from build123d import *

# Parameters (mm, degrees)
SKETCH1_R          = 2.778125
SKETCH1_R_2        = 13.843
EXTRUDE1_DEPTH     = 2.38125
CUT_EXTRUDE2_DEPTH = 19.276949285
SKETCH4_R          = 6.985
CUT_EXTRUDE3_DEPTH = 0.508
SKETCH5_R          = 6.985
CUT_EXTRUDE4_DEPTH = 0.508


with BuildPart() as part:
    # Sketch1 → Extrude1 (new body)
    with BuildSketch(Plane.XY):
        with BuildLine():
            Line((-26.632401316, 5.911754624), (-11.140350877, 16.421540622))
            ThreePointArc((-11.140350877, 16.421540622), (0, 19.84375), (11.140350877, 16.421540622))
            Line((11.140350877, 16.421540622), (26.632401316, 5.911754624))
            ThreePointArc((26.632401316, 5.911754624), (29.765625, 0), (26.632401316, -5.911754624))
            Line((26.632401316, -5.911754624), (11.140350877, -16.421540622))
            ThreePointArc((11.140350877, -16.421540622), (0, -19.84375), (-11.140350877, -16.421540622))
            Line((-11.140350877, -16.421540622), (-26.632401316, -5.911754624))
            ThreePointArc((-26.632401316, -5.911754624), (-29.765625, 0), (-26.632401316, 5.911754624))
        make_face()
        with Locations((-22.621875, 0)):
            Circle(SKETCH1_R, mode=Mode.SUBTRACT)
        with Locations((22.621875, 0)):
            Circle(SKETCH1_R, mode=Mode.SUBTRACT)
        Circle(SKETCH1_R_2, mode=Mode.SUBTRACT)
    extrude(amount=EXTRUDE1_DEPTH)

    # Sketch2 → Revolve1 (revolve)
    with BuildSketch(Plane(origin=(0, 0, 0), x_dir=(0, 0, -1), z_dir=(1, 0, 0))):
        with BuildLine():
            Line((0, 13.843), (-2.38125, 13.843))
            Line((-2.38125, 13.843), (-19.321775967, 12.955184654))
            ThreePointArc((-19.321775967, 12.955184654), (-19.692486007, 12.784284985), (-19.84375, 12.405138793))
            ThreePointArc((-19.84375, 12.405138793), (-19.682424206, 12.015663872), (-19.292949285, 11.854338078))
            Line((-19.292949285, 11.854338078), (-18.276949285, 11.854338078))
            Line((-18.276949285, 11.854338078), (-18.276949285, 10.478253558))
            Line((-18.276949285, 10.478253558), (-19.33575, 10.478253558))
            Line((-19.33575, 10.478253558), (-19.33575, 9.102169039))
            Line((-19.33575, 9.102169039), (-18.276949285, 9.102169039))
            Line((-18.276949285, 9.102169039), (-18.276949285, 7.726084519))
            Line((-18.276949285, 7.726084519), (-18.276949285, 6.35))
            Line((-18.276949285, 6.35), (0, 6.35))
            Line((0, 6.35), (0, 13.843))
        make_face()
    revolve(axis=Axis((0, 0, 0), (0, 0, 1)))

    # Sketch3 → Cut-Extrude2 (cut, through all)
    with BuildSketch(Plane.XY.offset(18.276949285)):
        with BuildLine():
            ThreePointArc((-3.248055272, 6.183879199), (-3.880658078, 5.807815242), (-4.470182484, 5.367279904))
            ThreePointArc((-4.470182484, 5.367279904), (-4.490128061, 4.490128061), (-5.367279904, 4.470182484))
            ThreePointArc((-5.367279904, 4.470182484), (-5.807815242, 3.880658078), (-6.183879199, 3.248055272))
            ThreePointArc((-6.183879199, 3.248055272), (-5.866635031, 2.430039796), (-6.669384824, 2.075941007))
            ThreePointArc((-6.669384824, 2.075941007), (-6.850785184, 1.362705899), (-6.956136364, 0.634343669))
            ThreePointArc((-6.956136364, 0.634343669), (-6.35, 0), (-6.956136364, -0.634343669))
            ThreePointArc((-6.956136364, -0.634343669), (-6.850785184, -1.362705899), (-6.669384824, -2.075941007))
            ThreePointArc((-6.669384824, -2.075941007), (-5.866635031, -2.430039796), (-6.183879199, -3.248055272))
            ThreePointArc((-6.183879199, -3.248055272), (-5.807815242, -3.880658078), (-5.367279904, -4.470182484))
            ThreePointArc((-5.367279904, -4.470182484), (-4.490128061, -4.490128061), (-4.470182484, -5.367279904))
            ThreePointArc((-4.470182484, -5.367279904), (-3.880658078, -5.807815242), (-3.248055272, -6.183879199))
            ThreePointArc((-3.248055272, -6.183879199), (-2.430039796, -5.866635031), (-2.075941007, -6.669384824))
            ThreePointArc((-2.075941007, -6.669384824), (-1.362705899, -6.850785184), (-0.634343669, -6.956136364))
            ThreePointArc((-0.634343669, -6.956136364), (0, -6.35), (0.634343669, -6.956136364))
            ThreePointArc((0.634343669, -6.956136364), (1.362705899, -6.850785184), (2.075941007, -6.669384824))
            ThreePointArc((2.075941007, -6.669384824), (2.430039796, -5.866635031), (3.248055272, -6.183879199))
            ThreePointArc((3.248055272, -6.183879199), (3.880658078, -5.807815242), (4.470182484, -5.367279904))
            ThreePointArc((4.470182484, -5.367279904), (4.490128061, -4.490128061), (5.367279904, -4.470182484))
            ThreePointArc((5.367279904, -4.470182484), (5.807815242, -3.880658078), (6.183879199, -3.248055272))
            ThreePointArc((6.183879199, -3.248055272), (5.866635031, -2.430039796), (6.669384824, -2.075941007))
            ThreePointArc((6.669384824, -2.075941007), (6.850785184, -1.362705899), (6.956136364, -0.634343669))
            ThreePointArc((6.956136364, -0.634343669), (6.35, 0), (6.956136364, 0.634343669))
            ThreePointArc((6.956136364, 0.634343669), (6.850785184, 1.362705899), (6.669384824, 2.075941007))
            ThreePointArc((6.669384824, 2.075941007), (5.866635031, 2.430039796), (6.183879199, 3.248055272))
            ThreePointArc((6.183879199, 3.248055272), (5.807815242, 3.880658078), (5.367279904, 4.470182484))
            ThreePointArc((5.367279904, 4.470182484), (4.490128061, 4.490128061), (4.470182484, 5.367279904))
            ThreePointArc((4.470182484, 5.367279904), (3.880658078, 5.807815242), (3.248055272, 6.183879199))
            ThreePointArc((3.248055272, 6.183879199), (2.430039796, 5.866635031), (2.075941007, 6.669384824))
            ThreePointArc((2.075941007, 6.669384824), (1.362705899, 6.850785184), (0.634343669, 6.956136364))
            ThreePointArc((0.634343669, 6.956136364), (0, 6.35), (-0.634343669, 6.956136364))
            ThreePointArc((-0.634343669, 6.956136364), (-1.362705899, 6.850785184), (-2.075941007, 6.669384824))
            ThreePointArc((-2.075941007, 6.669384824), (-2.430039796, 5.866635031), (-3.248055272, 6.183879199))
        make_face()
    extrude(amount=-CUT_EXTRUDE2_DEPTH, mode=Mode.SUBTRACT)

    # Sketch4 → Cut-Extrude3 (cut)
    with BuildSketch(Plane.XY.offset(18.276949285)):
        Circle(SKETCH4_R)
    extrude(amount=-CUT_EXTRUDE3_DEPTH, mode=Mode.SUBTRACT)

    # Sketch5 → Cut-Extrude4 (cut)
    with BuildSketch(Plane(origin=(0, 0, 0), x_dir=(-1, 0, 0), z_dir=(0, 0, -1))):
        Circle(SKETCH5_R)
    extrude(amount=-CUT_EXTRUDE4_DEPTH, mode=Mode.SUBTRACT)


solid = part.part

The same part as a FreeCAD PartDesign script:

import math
import FreeCAD as App
import Part
import Sketcher
from FreeCAD import Vector
Q = App.Units.Quantity

doc = App.newDocument("Part")
body = doc.addObject("PartDesign::Body", "Body")

# Sketch on XY plane
sketch1 = doc.addObject("Sketcher::SketchObject", "Sketch")
body.addObject(sketch1)
sketch1.AttachmentSupport = (doc.XY_Plane, [""])
sketch1.MapMode = "FlatFace"
sketch1.addGeometry(Part.LineSegment(Vector(-11.140351, 16.421541, 0), Vector(-26.632401, 5.911755, 0)), False)
sketch1.addGeometry(Part.ArcOfCircle(Part.Circle(Vector(-22.621875, 0, 0), Vector(0, 0, 1), 7.14375), math.radians(124.152915), math.radians(235.847085)), False)
sketch1.addGeometry(Part.LineSegment(Vector(-26.632401, -5.911755, 0), Vector(-11.140351, -16.421541, 0)), False)
sketch1.addGeometry(Part.ArcOfCircle(Part.Circle(Vector(0, 0, 0), Vector(0, 0, 1), 19.84375), math.radians(-124.152915), math.radians(-55.847085)), False)
sketch1.addGeometry(Part.LineSegment(Vector(11.140351, -16.421541, 0), Vector(26.632401, -5.911755, 0)), False)
sketch1.addGeometry(Part.ArcOfCircle(Part.Circle(Vector(22.621875, 0, 0), Vector(0, 0, 1), 7.14375), math.radians(-55.847085), math.radians(55.847085)), False)
sketch1.addGeometry(Part.LineSegment(Vector(26.632401, 5.911755, 0), Vector(11.140351, 16.421541, 0)), False)
sketch1.addGeometry(Part.ArcOfCircle(Part.Circle(Vector(0, 0, 0), Vector(0, 0, 1), 19.84375), math.radians(55.847085), math.radians(124.152915)), False)
sketch1.addGeometry(Part.Circle(Vector(22.621875, 0, 0), Vector(0, 0, 1), 2.778125), False)
sketch1.addGeometry(Part.Circle(Vector(0, 0, 0), Vector(0, 0, 1), 13.843), False)
sketch1.addGeometry(Part.Circle(Vector(-22.621875, 0, 0), Vector(0, 0, 1), 2.778125), False)
sketch1.addConstraint(Sketcher.Constraint("Tangent", 0, 2, 1, 1))
sketch1.addConstraint(Sketcher.Constraint("Tangent", 1, 2, 2, 1))
sketch1.addConstraint(Sketcher.Constraint("Tangent", 2, 2, 3, 1))
sketch1.addConstraint(Sketcher.Constraint("Tangent", 3, 2, 4, 1))
sketch1.addConstraint(Sketcher.Constraint("Tangent", 4, 2, 5, 1))
sketch1.addConstraint(Sketcher.Constraint("Tangent", 5, 2, 6, 1))
sketch1.addConstraint(Sketcher.Constraint("Tangent", 6, 2, 7, 1))
sketch1.addConstraint(Sketcher.Constraint("Tangent", 7, 2, 0, 1))
sketch1.addConstraint(Sketcher.Constraint("Coincident", 3, 3, -1, 1))
sketch1.addConstraint(Sketcher.Constraint("Coincident", 7, 3, -1, 1))
sketch1.addConstraint(Sketcher.Constraint("Coincident", 9, 3, -1, 1))
sketch1.addConstraint(Sketcher.Constraint("Coincident", 8, 3, 5, 3))
sketch1.addConstraint(Sketcher.Constraint("Coincident", 10, 3, 1, 3))
sketch1.addConstraint(Sketcher.Constraint("Equal", 1, 5))
sketch1.addConstraint(Sketcher.Constraint("Equal", 3, 7))
sketch1.addConstraint(Sketcher.Constraint("Equal", 8, 10))
sketch1.addConstraint(Sketcher.Constraint("Symmetric", 1, 3, 5, 3, -1, 1))
sketch1.addConstraint(Sketcher.Constraint("PointOnObject", 1, 3, -1))
sketch1.addConstraint(Sketcher.Constraint("Diameter", 9, Q("1.09 in")))
sketch1.addConstraint(Sketcher.Constraint("Diameter", 8, Q("0.21875 in")))
sketch1.addConstraint(Sketcher.Constraint("Radius", 1, Q("0.28125 in")))
sketch1.addConstraint(Sketcher.Constraint("Radius", 3, Q("0.78125 in")))
sketch1.addConstraint(Sketcher.Constraint("DistanceX", 1, 3, -1, 1, Q("0.890625 in")))
pad1 = doc.addObject("PartDesign::Pad", "Pad")
body.addObject(pad1)
pad1.Profile = sketch1
pad1.Length = Q("0.09375 in")

# Sketch on YZ plane
sketch2 = doc.addObject("Sketcher::SketchObject", "Sketch001")
body.addObject(sketch2)
sketch2.AttachmentSupport = (doc.YZ_Plane, [""])
sketch2.MapMode = "FlatFace"
sketch2.addGeometry(Part.LineSegment(Vector(13.843, 0, 0), Vector(13.843, 2.38125, 0)), False)
sketch2.addGeometry(Part.LineSegment(Vector(13.843, 2.38125, 0), Vector(12.955185, 19.321776, 0)), False)
sketch2.addGeometry(Part.ArcOfCircle(Part.Circle(Vector(12.405139, 19.292949, 0), Vector(0, 0, 1), 0.550801), math.radians(3), math.radians(90)), False)
sketch2.addGeometry(Part.ArcOfCircle(Part.Circle(Vector(12.405139, 19.292949, 0), Vector(0, 0, 1), 0.550801), math.radians(90), math.radians(180)), False)
sketch2.addGeometry(Part.LineSegment(Vector(11.854338, 19.292949, 0), Vector(11.854338, 18.276949, 0)), False)
sketch2.addGeometry(Part.LineSegment(Vector(11.854338, 18.276949, 0), Vector(10.478254, 18.276949, 0)), False)
sketch2.addGeometry(Part.LineSegment(Vector(10.478254, 18.276949, 0), Vector(10.478254, 19.33575, 0)), False)
sketch2.addGeometry(Part.LineSegment(Vector(10.478254, 19.33575, 0), Vector(9.102169, 19.33575, 0)), False)
sketch2.addGeometry(Part.LineSegment(Vector(9.102169, 19.33575, 0), Vector(9.102169, 18.276949, 0)), False)
sketch2.addGeometry(Part.LineSegment(Vector(9.102169, 18.276949, 0), Vector(6.35, 18.276949, 0)), False)
sketch2.addGeometry(Part.LineSegment(Vector(6.35, 18.276949, 0), Vector(6.35, 0, 0)), False)
sketch2.addGeometry(Part.LineSegment(Vector(6.35, 0, 0), Vector(13.843, 0, 0)), False)
sketch2.addConstraint(Sketcher.Constraint("Coincident", 0, 2, 1, 1))
sketch2.addConstraint(Sketcher.Constraint("Tangent", 1, 2, 2, 1))
sketch2.addConstraint(Sketcher.Constraint("Tangent", 2, 2, 3, 1))
sketch2.addConstraint(Sketcher.Constraint("Tangent", 3, 2, 4, 1))
sketch2.addConstraint(Sketcher.Constraint("Coincident", 4, 2, 5, 1))
sketch2.addConstraint(Sketcher.Constraint("Coincident", 5, 2, 6, 1))
sketch2.addConstraint(Sketcher.Constraint("Coincident", 6, 2, 7, 1))
sketch2.addConstraint(Sketcher.Constraint("Coincident", 7, 2, 8, 1))
sketch2.addConstraint(Sketcher.Constraint("Coincident", 8, 2, 9, 1))
sketch2.addConstraint(Sketcher.Constraint("Coincident", 9, 2, 10, 1))
sketch2.addConstraint(Sketcher.Constraint("Coincident", 10, 2, 11, 1))
sketch2.addConstraint(Sketcher.Constraint("Coincident", 11, 2, 0, 1))
sketch2.addConstraint(Sketcher.Constraint("Vertical", 0))
sketch2.addConstraint(Sketcher.Constraint("Vertical", 4))
sketch2.addConstraint(Sketcher.Constraint("Horizontal", 5))
sketch2.addConstraint(Sketcher.Constraint("Vertical", 6))
sketch2.addConstraint(Sketcher.Constraint("Horizontal", 7))
sketch2.addConstraint(Sketcher.Constraint("Vertical", 8))
sketch2.addConstraint(Sketcher.Constraint("Horizontal", 9))
sketch2.addConstraint(Sketcher.Constraint("Vertical", 10))
sketch2.addConstraint(Sketcher.Constraint("Horizontal", 11))
sketch2.addConstraint(Sketcher.Constraint("Equal", 2, 3))
sketch2.addConstraint(Sketcher.Constraint("PointOnObject", 10, 2, -1))
sketch2.addConstraint(Sketcher.Constraint("Horizontal", 5, 2, 8, 2))
sketch2.addConstraint(Sketcher.Constraint("Vertical", 3, 3, 2, 2))
sketch2.addConstraint(Sketcher.Constraint("Equal", 5, 7))
sketch2.addConstraint(Sketcher.Constraint("Angle", 1, Q("93 deg")))
sketch2.addConstraint(Sketcher.Constraint("DistanceY", 4, 2, 4, 1, Q("0.04 in")))
sketch2.addConstraint(Sketcher.Constraint("DistanceX", 11, 1, 11, 2, Q("0.295 in")))
sketch2.addConstraint(Sketcher.Constraint("DistanceY", 0, 1, 0, 2, Q("0.09375 in")))
sketch2.addConstraint(Sketcher.Constraint("DistanceX", -1, 1, 9, 2, Q("0.25 in")))
sketch2.addConstraint(Sketcher.Constraint("Radius", 2, 0.550801))
sketch2.addConstraint(Sketcher.Constraint("DistanceY", -1, 1, 2, 2, Q("0.78125 in")))
sketch2.addConstraint(Sketcher.Constraint("DistanceY", 6, 1, 6, 2, 1.058801))
sketch2.addConstraint(Sketcher.Constraint("DistanceX", 9, 2, 9, 1, 2.752169))
revolution = doc.addObject("PartDesign::Revolution", "Revolution")
body.addObject(revolution)
revolution.Profile = sketch2
revolution.ReferenceAxis = (sketch2, ["V_Axis"])
revolution.Angle = 360

# Sketch on XY plane
sketch3 = doc.addObject("Sketcher::SketchObject", "Sketch002")
body.addObject(sketch3)
sketch3.AttachmentSupport = (doc.XY_Plane, [""])
sketch3.MapMode = "FlatFace"
sketch3.AttachmentOffset = App.Placement(Vector(0, 0, 18.276949), App.Rotation())
sketch3.addGeometry(Part.ArcOfCircle(Part.Circle(Vector(0, 0, 0), Vector(0, 0, 1), 6.985), math.radians(117.710502), math.radians(129.789497)), False)
sketch3.addGeometry(Part.ArcOfCircle(Part.Circle(Vector(-4.939141, 4.939141, 0), Vector(0, 0, 1), 0.635), math.radians(-132.394749), math.radians(42.394749)), False)
sketch3.addGeometry(Part.ArcOfCircle(Part.Circle(Vector(0, 0, 0), Vector(0, 0, 1), 6.985), math.radians(140.210503), math.radians(152.289498)), False)
sketch3.addGeometry(Part.ArcOfCircle(Part.Circle(Vector(-6.453299, 2.673044, 0), Vector(0, 0, 1), 0.635), math.radians(-109.894749), math.radians(64.894749)), False)
sketch3.addGeometry(Part.ArcOfCircle(Part.Circle(Vector(0, 0, 0), Vector(0, 0, 1), 6.985), math.radians(162.710502), math.radians(174.789497)), False)
sketch3.addGeometry(Part.ArcOfCircle(Part.Circle(Vector(-6.985, 0, 0), Vector(0, 0, 1), 0.635), math.radians(-87.394749), math.radians(87.394749)), False)
sketch3.addGeometry(Part.ArcOfCircle(Part.Circle(Vector(0, 0, 0), Vector(0, 0, 1), 6.985), math.radians(-174.789497), math.radians(-162.710502)), False)
sketch3.addGeometry(Part.ArcOfCircle(Part.Circle(Vector(-6.453299, -2.673044, 0), Vector(0, 0, 1), 0.635), math.radians(-64.894749), math.radians(109.894749)), False)
sketch3.addGeometry(Part.ArcOfCircle(Part.Circle(Vector(0, 0, 0), Vector(0, 0, 1), 6.985), math.radians(-152.289498), math.radians(-140.210503)), False)
sketch3.addGeometry(Part.ArcOfCircle(Part.Circle(Vector(-4.939141, -4.939141, 0), Vector(0, 0, 1), 0.635), math.radians(-42.394749), math.radians(132.394749)), False)
sketch3.addGeometry(Part.ArcOfCircle(Part.Circle(Vector(0, 0, 0), Vector(0, 0, 1), 6.985), math.radians(-129.789497), math.radians(-117.710502)), False)
sketch3.addGeometry(Part.ArcOfCircle(Part.Circle(Vector(-2.673044, -6.453299, 0), Vector(0, 0, 1), 0.635), math.radians(-19.894749), math.radians(154.894749)), False)
sketch3.addGeometry(Part.ArcOfCircle(Part.Circle(Vector(0, 0, 0), Vector(0, 0, 1), 6.985), math.radians(-107.289498), math.radians(-95.210503)), False)
sketch3.addGeometry(Part.ArcOfCircle(Part.Circle(Vector(0, -6.985, 0), Vector(0, 0, 1), 0.635), math.radians(2.605251), math.radians(177.394749)), False)
sketch3.addGeometry(Part.ArcOfCircle(Part.Circle(Vector(0, 0, 0), Vector(0, 0, 1), 6.985), math.radians(-84.789497), math.radians(-72.710502)), False)
sketch3.addGeometry(Part.ArcOfCircle(Part.Circle(Vector(2.673044, -6.453299, 0), Vector(0, 0, 1), 0.635), math.radians(25.105251), math.radians(199.894749)), False)
sketch3.addGeometry(Part.ArcOfCircle(Part.Circle(Vector(0, 0, 0), Vector(0, 0, 1), 6.985), math.radians(-62.289498), math.radians(-50.210503)), False)
sketch3.addGeometry(Part.ArcOfCircle(Part.Circle(Vector(4.939141, -4.939141, 0), Vector(0, 0, 1), 0.635), math.radians(47.605251), math.radians(222.394749)), False)
sketch3.addGeometry(Part.ArcOfCircle(Part.Circle(Vector(0, 0, 0), Vector(0, 0, 1), 6.985), math.radians(-39.789497), math.radians(-27.710502)), False)
sketch3.addGeometry(Part.ArcOfCircle(Part.Circle(Vector(6.453299, -2.673044, 0), Vector(0, 0, 1), 0.635), math.radians(70.105251), math.radians(244.894749)), False)
sketch3.addGeometry(Part.ArcOfCircle(Part.Circle(Vector(0, 0, 0), Vector(0, 0, 1), 6.985), math.radians(-17.289498), math.radians(-5.210503)), False)
sketch3.addGeometry(Part.ArcOfCircle(Part.Circle(Vector(6.985, 0, 0), Vector(0, 0, 1), 0.635), math.radians(92.605251), math.radians(267.394749)), False)
sketch3.addGeometry(Part.ArcOfCircle(Part.Circle(Vector(0, 0, 0), Vector(0, 0, 1), 6.985), math.radians(5.210503), math.radians(17.289498)), False)
sketch3.addGeometry(Part.ArcOfCircle(Part.Circle(Vector(6.453299, 2.673044, 0), Vector(0, 0, 1), 0.635), math.radians(115.105251), math.radians(289.894749)), False)
sketch3.addGeometry(Part.ArcOfCircle(Part.Circle(Vector(0, 0, 0), Vector(0, 0, 1), 6.985), math.radians(27.710502), math.radians(39.789497)), False)
sketch3.addGeometry(Part.ArcOfCircle(Part.Circle(Vector(4.939141, 4.939141, 0), Vector(0, 0, 1), 0.635), math.radians(137.605251), math.radians(312.394749)), False)
sketch3.addGeometry(Part.ArcOfCircle(Part.Circle(Vector(0, 0, 0), Vector(0, 0, 1), 6.985), math.radians(50.210503), math.radians(62.289498)), False)
sketch3.addGeometry(Part.ArcOfCircle(Part.Circle(Vector(2.673044, 6.453299, 0), Vector(0, 0, 1), 0.635), math.radians(160.105251), math.radians(334.894749)), False)
sketch3.addGeometry(Part.ArcOfCircle(Part.Circle(Vector(0, 0, 0), Vector(0, 0, 1), 6.985), math.radians(72.710502), math.radians(84.789497)), False)
sketch3.addGeometry(Part.ArcOfCircle(Part.Circle(Vector(0, 6.985, 0), Vector(0, 0, 1), 0.635), math.radians(-177.394749), math.radians(-2.605251)), False)
sketch3.addGeometry(Part.ArcOfCircle(Part.Circle(Vector(0, 0, 0), Vector(0, 0, 1), 6.985), math.radians(95.210503), math.radians(107.289498)), False)
sketch3.addGeometry(Part.ArcOfCircle(Part.Circle(Vector(-2.673044, 6.453299, 0), Vector(0, 0, 1), 0.635), math.radians(-154.894749), math.radians(19.894749)), False)
sketch3.addConstraint(Sketcher.Constraint("Coincident", 0, 2, 1, 2))
sketch3.addConstraint(Sketcher.Constraint("Coincident", 1, 1, 2, 1))
sketch3.addConstraint(Sketcher.Constraint("Coincident", 2, 2, 3, 2))
sketch3.addConstraint(Sketcher.Constraint("Coincident", 3, 1, 4, 1))
sketch3.addConstraint(Sketcher.Constraint("Coincident", 4, 2, 5, 2))
sketch3.addConstraint(Sketcher.Constraint("Coincident", 5, 1, 6, 1))
sketch3.addConstraint(Sketcher.Constraint("Coincident", 6, 2, 7, 2))
sketch3.addConstraint(Sketcher.Constraint("Coincident", 7, 1, 8, 1))
sketch3.addConstraint(Sketcher.Constraint("Coincident", 8, 2, 9, 2))
sketch3.addConstraint(Sketcher.Constraint("Coincident", 9, 1, 10, 1))
sketch3.addConstraint(Sketcher.Constraint("Coincident", 10, 2, 11, 2))
sketch3.addConstraint(Sketcher.Constraint("Coincident", 11, 1, 12, 1))
sketch3.addConstraint(Sketcher.Constraint("Coincident", 12, 2, 13, 2))
sketch3.addConstraint(Sketcher.Constraint("Coincident", 13, 1, 14, 1))
sketch3.addConstraint(Sketcher.Constraint("Coincident", 14, 2, 15, 2))
sketch3.addConstraint(Sketcher.Constraint("Coincident", 15, 1, 16, 1))
sketch3.addConstraint(Sketcher.Constraint("Coincident", 16, 2, 17, 2))
sketch3.addConstraint(Sketcher.Constraint("Coincident", 17, 1, 18, 1))
sketch3.addConstraint(Sketcher.Constraint("Coincident", 18, 2, 19, 2))
sketch3.addConstraint(Sketcher.Constraint("Coincident", 19, 1, 20, 1))
sketch3.addConstraint(Sketcher.Constraint("Coincident", 20, 2, 21, 2))
sketch3.addConstraint(Sketcher.Constraint("Coincident", 21, 1, 22, 1))
sketch3.addConstraint(Sketcher.Constraint("Coincident", 22, 2, 23, 2))
sketch3.addConstraint(Sketcher.Constraint("Coincident", 23, 1, 24, 1))
sketch3.addConstraint(Sketcher.Constraint("Coincident", 24, 2, 25, 2))
sketch3.addConstraint(Sketcher.Constraint("Coincident", 25, 1, 26, 1))
sketch3.addConstraint(Sketcher.Constraint("Coincident", 26, 2, 27, 2))
sketch3.addConstraint(Sketcher.Constraint("Coincident", 27, 1, 28, 1))
sketch3.addConstraint(Sketcher.Constraint("Coincident", 28, 2, 29, 2))
sketch3.addConstraint(Sketcher.Constraint("Coincident", 29, 1, 30, 1))
sketch3.addConstraint(Sketcher.Constraint("Coincident", 30, 2, 31, 2))
sketch3.addConstraint(Sketcher.Constraint("Coincident", 31, 1, 0, 1))
sketch3.addConstraint(Sketcher.Constraint("Coincident", 0, 3, -1, 1))
sketch3.addConstraint(Sketcher.Constraint("Coincident", 2, 3, -1, 1))
sketch3.addConstraint(Sketcher.Constraint("Coincident", 4, 3, -1, 1))
sketch3.addConstraint(Sketcher.Constraint("Coincident", 6, 3, -1, 1))
sketch3.addConstraint(Sketcher.Constraint("Coincident", 8, 3, -1, 1))
sketch3.addConstraint(Sketcher.Constraint("Coincident", 10, 3, -1, 1))
sketch3.addConstraint(Sketcher.Constraint("Coincident", 12, 3, -1, 1))
sketch3.addConstraint(Sketcher.Constraint("Coincident", 14, 3, -1, 1))
sketch3.addConstraint(Sketcher.Constraint("Coincident", 16, 3, -1, 1))
sketch3.addConstraint(Sketcher.Constraint("Coincident", 18, 3, -1, 1))
sketch3.addConstraint(Sketcher.Constraint("Coincident", 20, 3, -1, 1))
sketch3.addConstraint(Sketcher.Constraint("Coincident", 22, 3, -1, 1))
sketch3.addConstraint(Sketcher.Constraint("Coincident", 24, 3, -1, 1))
sketch3.addConstraint(Sketcher.Constraint("Coincident", 26, 3, -1, 1))
sketch3.addConstraint(Sketcher.Constraint("Coincident", 28, 3, -1, 1))
sketch3.addConstraint(Sketcher.Constraint("Coincident", 30, 3, -1, 1))
sketch3.addConstraint(Sketcher.Constraint("Equal", 0, 2))
sketch3.addConstraint(Sketcher.Constraint("Equal", 1, 3))
sketch3.addConstraint(Sketcher.Constraint("Equal", 2, 4))
sketch3.addConstraint(Sketcher.Constraint("Equal", 3, 5))
sketch3.addConstraint(Sketcher.Constraint("Equal", 4, 6))
sketch3.addConstraint(Sketcher.Constraint("Equal", 5, 7))
sketch3.addConstraint(Sketcher.Constraint("Equal", 6, 8))
sketch3.addConstraint(Sketcher.Constraint("Equal", 7, 9))
sketch3.addConstraint(Sketcher.Constraint("Equal", 8, 10))
sketch3.addConstraint(Sketcher.Constraint("Equal", 9, 11))
sketch3.addConstraint(Sketcher.Constraint("Equal", 10, 12))
sketch3.addConstraint(Sketcher.Constraint("Equal", 11, 13))
sketch3.addConstraint(Sketcher.Constraint("Equal", 12, 14))
sketch3.addConstraint(Sketcher.Constraint("Equal", 13, 15))
sketch3.addConstraint(Sketcher.Constraint("Equal", 14, 16))
sketch3.addConstraint(Sketcher.Constraint("Equal", 15, 17))
sketch3.addConstraint(Sketcher.Constraint("Equal", 16, 18))
sketch3.addConstraint(Sketcher.Constraint("Equal", 17, 19))
sketch3.addConstraint(Sketcher.Constraint("Equal", 18, 20))
sketch3.addConstraint(Sketcher.Constraint("Equal", 19, 21))
sketch3.addConstraint(Sketcher.Constraint("Equal", 20, 22))
sketch3.addConstraint(Sketcher.Constraint("Equal", 21, 23))
sketch3.addConstraint(Sketcher.Constraint("Equal", 22, 24))
sketch3.addConstraint(Sketcher.Constraint("Equal", 23, 25))
sketch3.addConstraint(Sketcher.Constraint("Equal", 24, 26))
sketch3.addConstraint(Sketcher.Constraint("Equal", 25, 27))
sketch3.addConstraint(Sketcher.Constraint("Equal", 26, 28))
sketch3.addConstraint(Sketcher.Constraint("Equal", 27, 29))
sketch3.addConstraint(Sketcher.Constraint("Equal", 28, 30))
sketch3.addConstraint(Sketcher.Constraint("Equal", 29, 31))
sketch3.addConstraint(Sketcher.Constraint("Symmetric", 1, 3, 17, 3, -1, 1))
sketch3.addConstraint(Sketcher.Constraint("Symmetric", 3, 3, 19, 3, -1, 1))
sketch3.addConstraint(Sketcher.Constraint("Symmetric", 5, 3, 21, 3, -1, 1))
sketch3.addConstraint(Sketcher.Constraint("Symmetric", 7, 3, 23, 3, -1, 1))
sketch3.addConstraint(Sketcher.Constraint("Symmetric", 9, 3, 25, 3, -1, 1))
sketch3.addConstraint(Sketcher.Constraint("Symmetric", 11, 3, 27, 3, -1, 1))
sketch3.addConstraint(Sketcher.Constraint("Symmetric", 13, 3, 29, 3, -1, 1))
sketch3.addConstraint(Sketcher.Constraint("Symmetric", 15, 3, 31, 3, -1, 1))
sketch3.addConstraint(Sketcher.Constraint("Symmetric", 11, 3, 15, 3, -2))
sketch3.addConstraint(Sketcher.Constraint("Symmetric", 9, 3, 17, 3, -2))
sketch3.addConstraint(Sketcher.Constraint("Symmetric", 7, 3, 19, 3, -2))
sketch3.addConstraint(Sketcher.Constraint("PointOnObject", 5, 3, -1))
sketch3.addConstraint(Sketcher.Constraint("PointOnObject", 13, 3, -2))
sketch3.addConstraint(Sketcher.Constraint("Radius", 0, Q("0.275 in")))
sketch3.addConstraint(Sketcher.Constraint("Radius", 1, Q("0.025 in")))
sketch3.addConstraint(Sketcher.Constraint("DistanceX", 5, 3, -1, 1, Q("0.275 in")))
sketch3.addConstraint(Sketcher.Constraint("DistanceY", 13, 3, -1, 1, Q("0.275 in")))
sketch3.addConstraint(Sketcher.Constraint("DistanceX", 3, 3, -1, 1, 6.453299))
sketch3.addConstraint(Sketcher.Constraint("DistanceY", 11, 3, -1, 1, 6.453299))
sketch3.addConstraint(Sketcher.Constraint("DistanceX", 1, 3, -1, 1, 4.939141))
sketch3.addConstraint(Sketcher.Constraint("DistanceY", -1, 1, 1, 3, 4.939141))
sketch3.addConstraint(Sketcher.Constraint("DistanceX", 2, 2, -1, 1, 6.183879))
sketch3.addConstraint(Sketcher.Constraint("DistanceY", 10, 2, -1, 1, 6.183879))
pocket1 = doc.addObject("PartDesign::Pocket", "Pocket")
body.addObject(pocket1)
pocket1.Profile = sketch3
pocket1.Type = "ThroughAll"

# Sketch on XY plane
sketch4 = doc.addObject("Sketcher::SketchObject", "Sketch003")
body.addObject(sketch4)
sketch4.AttachmentSupport = (doc.XY_Plane, [""])
sketch4.MapMode = "FlatFace"
sketch4.AttachmentOffset = App.Placement(Vector(0, 0, 18.276949), App.Rotation())
sketch4.addGeometry(Part.Circle(Vector(0, 0, 0), Vector(0, 0, 1), 6.985), False)
sketch4.addConstraint(Sketcher.Constraint("Coincident", 0, 3, -1, 1))
sketch4.addConstraint(Sketcher.Constraint("Diameter", 0, Q("0.55 in")))
pocket2 = doc.addObject("PartDesign::Pocket", "Pocket001")
body.addObject(pocket2)
pocket2.Profile = sketch4
pocket2.Length = Q("0.02 in")

# Sketch on XY plane
sketch5 = doc.addObject("Sketcher::SketchObject", "Sketch004")
body.addObject(sketch5)
sketch5.AttachmentSupport = (doc.XY_Plane, [""])
sketch5.MapMode = "FlatFace"
sketch5.addGeometry(Part.Circle(Vector(0, 0, 0), Vector(0, 0, 1), 6.985), False)
sketch5.addConstraint(Sketcher.Constraint("Coincident", 0, 3, -1, 1))
sketch5.addConstraint(Sketcher.Constraint("Diameter", 0, Q("0.55 in")))
pocket3 = doc.addObject("PartDesign::Pocket", "Pocket002")
body.addObject(pocket3)
pocket3.Profile = sketch5
pocket3.Length = Q("0.02 in")
pocket3.Reversed = True

doc.recompute()
